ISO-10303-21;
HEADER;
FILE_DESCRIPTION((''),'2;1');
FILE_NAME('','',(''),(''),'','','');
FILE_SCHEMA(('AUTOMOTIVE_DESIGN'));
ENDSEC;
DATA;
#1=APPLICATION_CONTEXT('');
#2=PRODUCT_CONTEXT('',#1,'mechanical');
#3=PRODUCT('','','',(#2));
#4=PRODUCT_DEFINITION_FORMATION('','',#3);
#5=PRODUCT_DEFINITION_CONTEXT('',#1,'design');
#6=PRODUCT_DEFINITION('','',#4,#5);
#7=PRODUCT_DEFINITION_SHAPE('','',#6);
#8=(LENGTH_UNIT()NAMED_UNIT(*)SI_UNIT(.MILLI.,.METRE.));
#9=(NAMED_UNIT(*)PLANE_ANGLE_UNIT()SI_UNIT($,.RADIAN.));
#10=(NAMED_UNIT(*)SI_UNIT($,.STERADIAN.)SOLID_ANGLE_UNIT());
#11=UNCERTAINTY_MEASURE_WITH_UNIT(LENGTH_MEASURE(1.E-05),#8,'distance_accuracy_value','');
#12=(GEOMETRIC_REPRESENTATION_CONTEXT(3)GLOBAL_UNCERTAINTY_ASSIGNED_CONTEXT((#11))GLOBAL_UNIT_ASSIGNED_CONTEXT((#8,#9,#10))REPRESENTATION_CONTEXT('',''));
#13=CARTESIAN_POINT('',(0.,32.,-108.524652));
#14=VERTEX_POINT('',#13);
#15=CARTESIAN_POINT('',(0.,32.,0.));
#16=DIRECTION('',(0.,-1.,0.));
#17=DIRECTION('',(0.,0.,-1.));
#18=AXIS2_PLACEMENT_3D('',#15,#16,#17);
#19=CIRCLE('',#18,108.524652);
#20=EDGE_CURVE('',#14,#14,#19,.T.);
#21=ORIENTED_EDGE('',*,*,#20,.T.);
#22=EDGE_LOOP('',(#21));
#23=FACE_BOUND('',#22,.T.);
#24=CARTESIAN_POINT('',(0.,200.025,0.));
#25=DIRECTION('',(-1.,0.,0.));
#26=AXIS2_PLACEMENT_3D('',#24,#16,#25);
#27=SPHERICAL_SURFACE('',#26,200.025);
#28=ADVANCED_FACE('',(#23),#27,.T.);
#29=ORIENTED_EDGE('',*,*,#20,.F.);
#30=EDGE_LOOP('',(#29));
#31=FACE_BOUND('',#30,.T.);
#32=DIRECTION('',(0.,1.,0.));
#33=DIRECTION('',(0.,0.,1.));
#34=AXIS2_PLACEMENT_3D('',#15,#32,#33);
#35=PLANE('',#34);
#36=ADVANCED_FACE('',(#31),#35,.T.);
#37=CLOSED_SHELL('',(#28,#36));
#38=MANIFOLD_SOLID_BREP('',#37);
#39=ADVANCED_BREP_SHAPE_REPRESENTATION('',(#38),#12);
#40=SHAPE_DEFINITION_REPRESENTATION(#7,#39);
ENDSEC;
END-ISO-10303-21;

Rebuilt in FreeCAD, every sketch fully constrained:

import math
import FreeCAD as App
import Part
import Sketcher
Q = App.Units.Quantity

doc = App.newDocument("Part")
body = doc.addObject("PartDesign::Body", "Body")

sketch1 = doc.addObject("Sketcher::SketchObject", "Sketch")
body.addObject(sketch1)
sketch1.AttachmentSupport = (doc.XY_Plane, [""])
sketch1.MapMode = "FlatFace"
sketch1.addGeometry([
    Part.LineSegment(App.Vector(0, 32, 0), App.Vector(0, 0, 0)),
    Part.ArcOfCircle(Part.Circle(App.Vector(0, 200, 0), App.Vector(0, 0, 1), 200), math.radians(-90), math.radians(-57)),
    Part.LineSegment(App.Vector(109, 32, 0), App.Vector(0, 32, 0)),
], False)
sketch1.addConstraint([
    Sketcher.Constraint("Coincident", 0, 2, 1, 1),
    Sketcher.Constraint("Coincident", 1, 2, 2, 1),
    Sketcher.Constraint("Coincident", 2, 2, 0, 1),
    Sketcher.Constraint("Vertical", 0),
    Sketcher.Constraint("Horizontal", 2),
    Sketcher.Constraint("Coincident", 0, 2, -1, 1),
    Sketcher.Constraint("PointOnObject", 1, 3, -2),
    Sketcher.Constraint("DistanceY", 0, 2, 0, 1, Q("32 mm")),
    Sketcher.Constraint("Radius", 1, Q("200.025 mm")),
])
revolution = doc.addObject("PartDesign::Revolution", "Revolution")
body.addObject(revolution)
revolution.Profile = sketch1
revolution.ReferenceAxis = (sketch1, ["V_Axis"])
revolution.Angle = 360

doc.recompute()
